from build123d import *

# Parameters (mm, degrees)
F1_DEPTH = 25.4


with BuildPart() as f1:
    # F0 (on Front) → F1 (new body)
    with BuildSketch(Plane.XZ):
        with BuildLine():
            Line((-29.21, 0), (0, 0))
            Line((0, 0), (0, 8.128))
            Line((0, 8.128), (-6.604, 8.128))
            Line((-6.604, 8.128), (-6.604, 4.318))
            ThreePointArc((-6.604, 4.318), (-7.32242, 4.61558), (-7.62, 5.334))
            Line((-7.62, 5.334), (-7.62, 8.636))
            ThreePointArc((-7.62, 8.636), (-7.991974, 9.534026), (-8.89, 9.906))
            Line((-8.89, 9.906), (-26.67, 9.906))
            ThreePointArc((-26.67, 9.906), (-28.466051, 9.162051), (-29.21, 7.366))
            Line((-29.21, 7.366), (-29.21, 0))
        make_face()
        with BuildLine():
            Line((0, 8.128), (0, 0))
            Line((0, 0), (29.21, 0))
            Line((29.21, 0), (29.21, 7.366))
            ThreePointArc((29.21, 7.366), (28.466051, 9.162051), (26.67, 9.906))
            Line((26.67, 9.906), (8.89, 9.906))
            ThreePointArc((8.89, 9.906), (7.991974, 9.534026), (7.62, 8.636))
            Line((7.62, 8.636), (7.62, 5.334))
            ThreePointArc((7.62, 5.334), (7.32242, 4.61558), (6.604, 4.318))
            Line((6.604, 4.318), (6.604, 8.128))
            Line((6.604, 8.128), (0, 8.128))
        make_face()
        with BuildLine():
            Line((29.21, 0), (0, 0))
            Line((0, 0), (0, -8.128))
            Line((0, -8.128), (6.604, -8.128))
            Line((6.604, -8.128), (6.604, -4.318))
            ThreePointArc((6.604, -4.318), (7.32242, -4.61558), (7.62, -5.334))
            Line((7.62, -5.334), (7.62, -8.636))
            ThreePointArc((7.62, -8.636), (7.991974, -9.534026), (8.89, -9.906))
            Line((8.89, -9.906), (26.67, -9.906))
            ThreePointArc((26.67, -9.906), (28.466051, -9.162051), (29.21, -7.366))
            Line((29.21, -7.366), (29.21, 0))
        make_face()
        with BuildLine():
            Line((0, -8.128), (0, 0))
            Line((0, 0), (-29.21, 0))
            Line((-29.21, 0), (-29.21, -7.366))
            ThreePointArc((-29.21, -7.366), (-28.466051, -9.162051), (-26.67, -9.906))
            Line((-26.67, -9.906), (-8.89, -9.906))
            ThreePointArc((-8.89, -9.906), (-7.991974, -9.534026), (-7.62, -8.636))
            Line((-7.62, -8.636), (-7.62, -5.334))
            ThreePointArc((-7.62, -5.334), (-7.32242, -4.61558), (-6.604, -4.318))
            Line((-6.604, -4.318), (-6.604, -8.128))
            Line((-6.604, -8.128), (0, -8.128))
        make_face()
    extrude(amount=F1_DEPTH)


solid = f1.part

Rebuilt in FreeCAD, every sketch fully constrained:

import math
import FreeCAD as App
import Part
import Sketcher

V = App.Vector
Q = App.Units.Quantity

doc = App.newDocument("Part")
body = doc.addObject("PartDesign::Body", "Body")

sketch1 = body.newObject("Sketcher::SketchObject", "Sketch")
sketch1.AttachmentSupport = (doc.getObject("XZ_Plane"), [""])
sketch1.MapMode = "FlatFace"
sketch1.addGeometry(Part.LineSegment(V(6.6, -8.1, 0), V(6.6, -4.3, 0)), False)
sketch1.addGeometry(Part.ArcOfCircle(Part.Circle(V(6.6, -5.3, 0), V(0, 0, 1), 1), math.radians(0), math.radians(90)), False)
sketch1.addGeometry(Part.LineSegment(V(7.6, -5.3, 0), V(7.6, -8.6, 0)), False)
sketch1.addGeometry(Part.ArcOfCircle(Part.Circle(V(8.9, -8.6, 0), V(0, 0, 1), 1.3), math.radians(180), math.radians(270)), False)
sketch1.addGeometry(Part.LineSegment(V(8.9, -9.9, 0), V(26.7, -9.9, 0)), False)
sketch1.addGeometry(Part.ArcOfCircle(Part.Circle(V(26.7, -7.4, 0), V(0, 0, 1), 2.5), math.radians(-90), math.radians(0)), False)
sketch1.addGeometry(Part.LineSegment(V(29.2, -7.4, 0), V(29.2, 7.4, 0)), False)
sketch1.addGeometry(Part.ArcOfCircle(Part.Circle(V(26.7, 7.4, 0), V(0, 0, 1), 2.5), math.radians(0), math.radians(90)), False)
sketch1.addGeometry(Part.LineSegment(V(26.7, 9.9, 0), V(8.9, 9.9, 0)), False)
sketch1.addGeometry(Part.ArcOfCircle(Part.Circle(V(8.9, 8.6, 0), V(0, 0, 1), 1.3), math.radians(90), math.radians(180)), False)
sketch1.addGeometry(Part.LineSegment(V(7.6, 8.6, 0), V(7.6, 5.3, 0)), False)
sketch1.addGeometry(Part.ArcOfCircle(Part.Circle(V(6.6, 5.3, 0), V(0, 0, 1), 1), math.radians(-90), math.radians(0)), False)
sketch1.addGeometry(Part.LineSegment(V(6.6, 4.3, 0), V(6.6, 8.1, 0)), False)
sketch1.addGeometry(Part.LineSegment(V(6.6, 8.1, 0), V(-6.6, 8.1, 0)), False)
sketch1.addGeometry(Part.LineSegment(V(-6.6, 8.1, 0), V(-6.6, 4.3, 0)), False)
sketch1.addGeometry(Part.ArcOfCircle(Part.Circle(V(-6.6, 5.3, 0), V(0, 0, 1), 1), math.radians(-180), math.radians(-90)), False)
sketch1.addGeometry(Part.LineSegment(V(-7.6, 5.3, 0), V(-7.6, 8.6, 0)), False)
sketch1.addGeometry(Part.ArcOfCircle(Part.Circle(V(-8.9, 8.6, 0), V(0, 0, 1), 1.3), math.radians(0), math.radians(90)), False)
sketch1.addGeometry(Part.LineSegment(V(-8.9, 9.9, 0), V(-26.7, 9.9, 0)), False)
sketch1.addGeometry(Part.ArcOfCircle(Part.Circle(V(-26.7, 7.4, 0), V(0, 0, 1), 2.5), math.radians(90), math.radians(180)), False)
sketch1.addGeometry(Part.LineSegment(V(-29.2, 7.4, 0), V(-29.2, -7.4, 0)), False)
sketch1.addGeometry(Part.ArcOfCircle(Part.Circle(V(-26.7, -7.4, 0), V(0, 0, 1), 2.5), math.radians(-180), math.radians(-90)), False)
sketch1.addGeometry(Part.LineSegment(V(-26.7, -9.9, 0), V(-8.9, -9.9, 0)), False)
sketch1.addGeometry(Part.ArcOfCircle(Part.Circle(V(-8.9, -8.6, 0), V(0, 0, 1), 1.3), math.radians(-90), math.radians(0)), False)
sketch1.addGeometry(Part.LineSegment(V(-7.6, -8.6, 0), V(-7.6, -5.3, 0)), False)
sketch1.addGeometry(Part.ArcOfCircle(Part.Circle(V(-6.6, -5.3, 0), V(0, 0, 1), 1), math.radians(90), math.radians(180)), False)
sketch1.addGeometry(Part.LineSegment(V(-6.6, -4.3, 0), V(-6.6, -8.1, 0)), False)
sketch1.addGeometry(Part.LineSegment(V(-6.6, -8.1, 0), V(6.6, -8.1, 0)), False)
sketch1.addConstraint(Sketcher.Constraint("Coincident", 0, 2, 1, 2))
sketch1.addConstraint(Sketcher.Constraint("Tangent", 1, 1, 2, 1))
sketch1.addConstraint(Sketcher.Constraint("Tangent", 2, 2, 3, 1))
sketch1.addConstraint(Sketcher.Constraint("Tangent", 3, 2, 4, 1))
sketch1.addConstraint(Sketcher.Constraint("Tangent", 4, 2, 5, 1))
sketch1.addConstraint(Sketcher.Constraint("Tangent", 5, 2, 6, 1))
sketch1.addConstraint(Sketcher.Constraint("Tangent", 6, 2, 7, 1))
sketch1.addConstraint(Sketcher.Constraint("Tangent", 7, 2, 8, 1))
sketch1.addConstraint(Sketcher.Constraint("Tangent", 8, 2, 9, 1))
sketch1.addConstraint(Sketcher.Constraint("Tangent", 9, 2, 10, 1))
sketch1.addConstraint(Sketcher.Constraint("Tangent", 10, 2, 11, 2))
sketch1.addConstraint(Sketcher.Constraint("Coincident", 11, 1, 12, 1))
sketch1.addConstraint(Sketcher.Constraint("Coincident", 12, 2, 13, 1))
sketch1.addConstraint(Sketcher.Constraint("Coincident", 13, 2, 14, 1))
sketch1.addConstraint(Sketcher.Constraint("Coincident", 14, 2, 15, 2))
sketch1.addConstraint(Sketcher.Constraint("Tangent", 15, 1, 16, 1))
sketch1.addConstraint(Sketcher.Constraint("Tangent", 16, 2, 17, 1))
sketch1.addConstraint(Sketcher.Constraint("Tangent", 17, 2, 18, 1))
sketch1.addConstraint(Sketcher.Constraint("Tangent", 18, 2, 19, 1))
sketch1.addConstraint(Sketcher.Constraint("Tangent", 19, 2, 20, 1))
sketch1.addConstraint(Sketcher.Constraint("Tangent", 20, 2, 21, 1))
sketch1.addConstraint(Sketcher.Constraint("Tangent", 21, 2, 22, 1))
sketch1.addConstraint(Sketcher.Constraint("Tangent", 22, 2, 23, 1))
sketch1.addConstraint(Sketcher.Constraint("Tangent", 23, 2, 24, 1))
sketch1.addConstraint(Sketcher.Constraint("Tangent", 24, 2, 25, 2))
sketch1.addConstraint(Sketcher.Constraint("Coincident", 25, 1, 26, 1))
sketch1.addConstraint(Sketcher.Constraint("Coincident", 26, 2, 27, 1))
sketch1.addConstraint(Sketcher.Constraint("Coincident", 27, 2, 0, 1))
sketch1.addConstraint(Sketcher.Constraint("Vertical", 0))
sketch1.addConstraint(Sketcher.Constraint("Vertical", 2))
sketch1.addConstraint(Sketcher.Constraint("Horizontal", 4))
sketch1.addConstraint(Sketcher.Constraint("Vertical", 6))
sketch1.addConstraint(Sketcher.Constraint("Horizontal", 8))
sketch1.addConstraint(Sketcher.Constraint("Vertical", 10))
sketch1.addConstraint(Sketcher.Constraint("Vertical", 12))
sketch1.addConstraint(Sketcher.Constraint("Horizontal", 13))
sketch1.addConstraint(Sketcher.Constraint("Vertical", 14))
sketch1.addConstraint(Sketcher.Constraint("Vertical", 16))
sketch1.addConstraint(Sketcher.Constraint("Horizontal", 18))
sketch1.addConstraint(Sketcher.Constraint("Vertical", 20))
sketch1.addConstraint(Sketcher.Constraint("Horizontal", 22))
sketch1.addConstraint(Sketcher.Constraint("Vertical", 24))
sketch1.addConstraint(Sketcher.Constraint("Vertical", 26))
sketch1.addConstraint(Sketcher.Constraint("Horizontal", 27))
sketch1.addConstraint(Sketcher.Constraint("Equal", 5, 7))
sketch1.addConstraint(Sketcher.Constraint("Equal", 3, 9))
sketch1.addConstraint(Sketcher.Constraint("Equal", 1, 11))
sketch1.addConstraint(Sketcher.Constraint("Equal", 11, 15))
sketch1.addConstraint(Sketcher.Constraint("Equal", 9, 17))
sketch1.addConstraint(Sketcher.Constraint("Equal", 7, 19))
sketch1.addConstraint(Sketcher.Constraint("Equal", 19, 21))
sketch1.addConstraint(Sketcher.Constraint("Equal", 17, 23))
sketch1.addConstraint(Sketcher.Constraint("Equal", 15, 25))
sketch1.addConstraint(Sketcher.Constraint("Symmetric", 1, 3, 15, 3, -1, 1))
sketch1.addConstraint(Sketcher.Constraint("Symmetric", 5, 3, 19, 3, -1, 1))
sketch1.addConstraint(Sketcher.Constraint("Symmetric", 9, 3, 23, 3, -1, 1))
sketch1.addConstraint(Sketcher.Constraint("Symmetric", 11, 1, 25, 1, -1, 1))
sketch1.addConstraint(Sketcher.Constraint("Symmetric", 13, 2, 27, 2, -1, 1))
sketch1.addConstraint(Sketcher.Constraint("Symmetric", 11, 3, 15, 3, -2))
sketch1.addConstraint(Sketcher.Constraint("Horizontal", 9, 3, 17, 3))
sketch1.addConstraint(Sketcher.Constraint("Vertical", 11, 3, 0, 2))
sketch1.addConstraint(Sketcher.Constraint("Vertical", 0, 2, 11, 1))
sketch1.addConstraint(Sketcher.Constraint("Radius", 5, Q("0.1 in")))
sketch1.addConstraint(Sketcher.Constraint("Radius", 1, Q("0.0400001 in")))
sketch1.addConstraint(Sketcher.Constraint("Radius", 3, Q("0.0499999 in")))
sketch1.addConstraint(Sketcher.Constraint("DistanceX", 4, 1, 4, 2, Q("0.7 in")))
sketch1.addConstraint(Sketcher.Constraint("DistanceX", 13, 2, 13, 1, Q("0.52 in")))
sketch1.addConstraint(Sketcher.Constraint("DistanceY", 0, 1, 0, 2, Q("0.15 in")))
sketch1.addConstraint(Sketcher.Constraint("DistanceY", 2, 2, 2, 1, Q("0.13 in")))
sketch1.addConstraint(Sketcher.Constraint("DistanceY", 6, 1, 6, 2, Q("0.58 in")))
pad1 = body.newObject("PartDesign::Pad", "Pad")
pad1.Profile = sketch1
pad1.Length = Q("1 in")

doc.recompute()
